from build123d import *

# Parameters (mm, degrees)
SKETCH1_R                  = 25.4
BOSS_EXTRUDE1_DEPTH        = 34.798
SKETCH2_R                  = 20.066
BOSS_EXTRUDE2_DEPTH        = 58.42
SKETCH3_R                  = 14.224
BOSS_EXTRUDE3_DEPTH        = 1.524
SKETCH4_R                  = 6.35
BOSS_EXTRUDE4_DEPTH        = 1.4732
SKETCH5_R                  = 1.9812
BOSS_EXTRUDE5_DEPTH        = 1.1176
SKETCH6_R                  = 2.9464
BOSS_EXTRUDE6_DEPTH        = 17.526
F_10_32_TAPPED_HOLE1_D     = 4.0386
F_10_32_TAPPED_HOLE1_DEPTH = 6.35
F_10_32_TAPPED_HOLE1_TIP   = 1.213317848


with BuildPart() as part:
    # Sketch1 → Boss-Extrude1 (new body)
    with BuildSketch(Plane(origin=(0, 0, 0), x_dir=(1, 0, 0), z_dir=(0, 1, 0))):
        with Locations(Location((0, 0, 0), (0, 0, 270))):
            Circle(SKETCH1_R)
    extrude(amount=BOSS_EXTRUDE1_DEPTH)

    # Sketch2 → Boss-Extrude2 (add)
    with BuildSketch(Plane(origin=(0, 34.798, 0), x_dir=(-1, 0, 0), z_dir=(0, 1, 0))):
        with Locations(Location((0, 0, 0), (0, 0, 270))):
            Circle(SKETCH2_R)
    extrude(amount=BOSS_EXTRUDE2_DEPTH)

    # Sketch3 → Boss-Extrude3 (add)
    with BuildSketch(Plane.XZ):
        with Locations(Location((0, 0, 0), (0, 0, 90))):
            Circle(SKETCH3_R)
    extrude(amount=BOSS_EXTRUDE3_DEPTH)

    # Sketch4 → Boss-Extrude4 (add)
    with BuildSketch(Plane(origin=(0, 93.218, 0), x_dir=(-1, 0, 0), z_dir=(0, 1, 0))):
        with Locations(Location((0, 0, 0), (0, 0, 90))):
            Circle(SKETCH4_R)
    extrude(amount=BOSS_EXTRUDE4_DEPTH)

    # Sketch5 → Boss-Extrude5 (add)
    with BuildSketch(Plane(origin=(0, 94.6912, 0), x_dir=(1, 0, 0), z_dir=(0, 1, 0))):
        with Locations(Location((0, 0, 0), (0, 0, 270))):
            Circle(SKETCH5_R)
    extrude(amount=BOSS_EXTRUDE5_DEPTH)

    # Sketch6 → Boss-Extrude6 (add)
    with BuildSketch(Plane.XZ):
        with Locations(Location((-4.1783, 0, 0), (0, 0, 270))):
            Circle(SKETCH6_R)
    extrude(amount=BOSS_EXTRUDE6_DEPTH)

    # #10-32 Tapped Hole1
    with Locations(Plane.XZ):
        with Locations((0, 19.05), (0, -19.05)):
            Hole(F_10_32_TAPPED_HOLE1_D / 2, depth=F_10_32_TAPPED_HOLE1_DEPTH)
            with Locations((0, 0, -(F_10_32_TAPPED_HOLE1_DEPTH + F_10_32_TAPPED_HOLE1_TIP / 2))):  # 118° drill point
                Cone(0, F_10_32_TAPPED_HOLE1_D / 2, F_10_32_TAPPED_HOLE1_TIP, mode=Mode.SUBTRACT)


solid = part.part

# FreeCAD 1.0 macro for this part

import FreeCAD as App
import Part
import Sketcher
Q = App.Units.Quantity

doc = App.newDocument("Part")
params = doc.addObject("Spreadsheet::Sheet", "Params")
for row, (alias, value) in enumerate([
    ("sketch1_diameter", "2 in"),
    ("pad1_length", "1.37 in"),
    ("sketch2_diameter", "1.58 in"),
    ("pad2_length", "2.3 in"),
    ("sketch3_diameter", "1.12 in"),
    ("pad3_length", "0.06 in"),
    ("sketch4_diameter", "0.5 in"),
    ("pad4_length", "0.058 in"),
    ("sketch5_diameter", "0.156 in"),
    ("pad5_length", "0.044 in"),
    ("sketch6_diameter", "0.232 in"),
    ("pad6_length", "0.69 in"),
    ("sketch7_diameter", "0.159 in"),
    ("hole_diameter", "0.159 in"),
    ("hole_depth", "0.25 in"),
], start=1):
    params.set(f"A{row}", alias)
    params.set(f"B{row}", "=" + value)
    params.setAlias(f"B{row}", alias)

body = doc.addObject("PartDesign::Body", "Body")

sketch1 = body.newObject("Sketcher::SketchObject", "Sketch")
sketch1.AttachmentSupport = (doc.getObject("XZ_Plane"), [""])
sketch1.MapMode = "FlatFace"
sketch1.addGeometry(Part.Circle(App.Vector(0, 0, 0), App.Vector(0, 0, 1), 25), False)
sketch1.addConstraint([
    Sketcher.Constraint("Coincident", 0, 3, -1, 1),
    Sketcher.Constraint("Diameter", 0, Q("2 in")),
])
sketch1.setExpression("Constraints[1]", "Params.sketch1_diameter")
pad1 = body.newObject("PartDesign::Pad", "Pad")
pad1.Profile = sketch1
pad1.setExpression("Length", "Params.pad1_length")
pad1.Reversed = True

sketch2 = body.newObject("Sketcher::SketchObject", "Sketch001")
sketch2.AttachmentSupport = (doc.getObject("XZ_Plane"), [""])
sketch2.MapMode = "FlatFace"
sketch2.AttachmentOffset = App.Placement(App.Vector(0, 0, -1.37 * 25.4), App.Rotation())
sketch2.addGeometry(Part.Circle(App.Vector(0, 0, 0), App.Vector(0, 0, 1), 20), False)
sketch2.addConstraint([
    Sketcher.Constraint("Coincident", 0, 3, -1, 1),
    Sketcher.Constraint("Diameter", 0, Q("1.58 in")),
])
sketch2.setExpression("Constraints[1]", "Params.sketch2_diameter")
pad2 = body.newObject("PartDesign::Pad", "Pad001")
pad2.Profile = sketch2
pad2.setExpression("Length", "Params.pad2_length")
pad2.Reversed = True

sketch3 = body.newObject("Sketcher::SketchObject", "Sketch002")
sketch3.AttachmentSupport = (doc.getObject("XZ_Plane"), [""])
sketch3.MapMode = "FlatFace"
sketch3.addGeometry(Part.Circle(App.Vector(0, 0, 0), App.Vector(0, 0, 1), 14), False)
sketch3.addConstraint([
    Sketcher.Constraint("Coincident", 0, 3, -1, 1),
    Sketcher.Constraint("Diameter", 0, Q("1.12 in")),
])
sketch3.setExpression("Constraints[1]", "Params.sketch3_diameter")
pad3 = body.newObject("PartDesign::Pad", "Pad002")
pad3.Profile = sketch3
pad3.setExpression("Length", "Params.pad3_length")

sketch4 = body.newObject("Sketcher::SketchObject", "Sketch003")
sketch4.AttachmentSupport = (doc.getObject("XZ_Plane"), [""])
sketch4.MapMode = "FlatFace"
sketch4.AttachmentOffset = App.Placement(App.Vector(0, 0, -3.67 * 25.4), App.Rotation())
sketch4.addGeometry(Part.Circle(App.Vector(0, 0, 0), App.Vector(0, 0, 1), 6), False)
sketch4.addConstraint([
    Sketcher.Constraint("Coincident", 0, 3, -1, 1),
    Sketcher.Constraint("Diameter", 0, Q("0.5 in")),
])
sketch4.setExpression("Constraints[1]", "Params.sketch4_diameter")
pad4 = body.newObject("PartDesign::Pad", "Pad003")
pad4.Profile = sketch4
pad4.setExpression("Length", "Params.pad4_length")
pad4.Reversed = True

sketch5 = body.newObject("Sketcher::SketchObject", "Sketch004")
sketch5.AttachmentSupport = (doc.getObject("XZ_Plane"), [""])
sketch5.MapMode = "FlatFace"
sketch5.AttachmentOffset = App.Placement(App.Vector(0, 0, -3.728 * 25.4), App.Rotation())
sketch5.addGeometry(Part.Circle(App.Vector(0, 0, 0), App.Vector(0, 0, 1), 2), False)
sketch5.addConstraint([
    Sketcher.Constraint("Coincident", 0, 3, -1, 1),
    Sketcher.Constraint("Diameter", 0, Q("0.156 in")),
])
sketch5.setExpression("Constraints[1]", "Params.sketch5_diameter")
pad5 = body.newObject("PartDesign::Pad", "Pad004")
pad5.Profile = sketch5
pad5.setExpression("Length", "Params.pad5_length")
pad5.Reversed = True

sketch6 = body.newObject("Sketcher::SketchObject", "Sketch005")
sketch6.AttachmentSupport = (doc.getObject("XZ_Plane"), [""])
sketch6.MapMode = "FlatFace"
sketch6.addGeometry(Part.Circle(App.Vector(-4.2, 0, 0), App.Vector(0, 0, 1), 2.9), False)
sketch6.addConstraint([
    Sketcher.Constraint("PointOnObject", 0, 3, -1),
    Sketcher.Constraint("Diameter", 0, Q("0.232 in")),
    Sketcher.Constraint("DistanceX", 0, 3, -1, 1, Q("0.1645 in")),
])
sketch6.setExpression("Constraints[1]", "Params.sketch6_diameter")
pad6 = body.newObject("PartDesign::Pad", "Pad005")
pad6.Profile = sketch6
pad6.setExpression("Length", "Params.pad6_length")

sketch7 = body.newObject("Sketcher::SketchObject", "Sketch006")
sketch7.AttachmentSupport = (doc.getObject("XZ_Plane"), [""])
sketch7.MapMode = "FlatFace"
sketch7.addGeometry([
    Part.Circle(App.Vector(0, 19.1, 0), App.Vector(0, 0, 1), 2),
    Part.Circle(App.Vector(0, -19.1, 0), App.Vector(0, 0, 1), 2),
], False)
sketch7.addConstraint([
    Sketcher.Constraint("Equal", 0, 1),
    Sketcher.Constraint("Symmetric", 0, 3, 1, 3, -1, 1),
    Sketcher.Constraint("PointOnObject", 0, 3, -2),
    Sketcher.Constraint("Diameter", 0, Q("0.159 in")),
    Sketcher.Constraint("DistanceY", 1, 3, 0, 3, Q("1.5 in")),
])
sketch7.setExpression("Constraints[3]", "Params.sketch7_diameter")
doc.recompute()
hole = body.newObject("PartDesign::Hole", "Hole")
hole.Profile = sketch7
hole.ThreadType = "None"
hole.setExpression("Diameter", "Params.hole_diameter")
hole.DepthType = "Dimension"
hole.setExpression("Depth", "Params.hole_depth")
hole.DrillPoint = "Angled"
hole.DrillPointAngle = 118

doc.recompute()
